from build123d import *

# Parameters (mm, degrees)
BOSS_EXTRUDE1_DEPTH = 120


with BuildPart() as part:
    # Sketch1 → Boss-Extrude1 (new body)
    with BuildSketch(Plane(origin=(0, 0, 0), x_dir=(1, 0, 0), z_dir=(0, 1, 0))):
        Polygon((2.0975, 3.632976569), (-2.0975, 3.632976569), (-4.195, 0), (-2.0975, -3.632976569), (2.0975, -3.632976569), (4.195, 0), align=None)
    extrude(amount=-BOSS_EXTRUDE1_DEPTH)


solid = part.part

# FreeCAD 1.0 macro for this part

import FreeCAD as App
import Part
import Sketcher

V = App.Vector
Q = App.Units.Quantity

doc = App.newDocument("Part")
body = doc.addObject("PartDesign::Body", "Body")

sketch1 = body.newObject("Sketcher::SketchObject", "Sketch")
sketch1.AttachmentSupport = (doc.getObject("XZ_Plane"), [""])
sketch1.MapMode = "FlatFace"
sketch1.addGeometry(Part.LineSegment(V(2.1, -3.6, 0), V(-2.1, -3.6, 0)), False)
sketch1.addGeometry(Part.LineSegment(V(-2.1, -3.6, 0), V(-4.2, 0, 0)), False)
sketch1.addGeometry(Part.LineSegment(V(-4.2, 0, 0), V(-2.1, 3.6, 0)), False)
sketch1.addGeometry(Part.LineSegment(V(-2.1, 3.6, 0), V(2.1, 3.6, 0)), False)
sketch1.addGeometry(Part.LineSegment(V(2.1, 3.6, 0), V(4.2, 0, 0)), False)
sketch1.addGeometry(Part.LineSegment(V(4.2, 0, 0), V(2.1, -3.6, 0)), False)
sketch1.addConstraint(Sketcher.Constraint("Coincident", 0, 2, 1, 1))
sketch1.addConstraint(Sketcher.Constraint("Coincident", 1, 2, 2, 1))
sketch1.addConstraint(Sketcher.Constraint("Coincident", 2, 2, 3, 1))
sketch1.addConstraint(Sketcher.Constraint("Coincident", 3, 2, 4, 1))
sketch1.addConstraint(Sketcher.Constraint("Coincident", 4, 2, 5, 1))
sketch1.addConstraint(Sketcher.Constraint("Coincident", 5, 2, 0, 1))
sketch1.addConstraint(Sketcher.Constraint("Horizontal", 0))
sketch1.addConstraint(Sketcher.Constraint("Horizontal", 3))
sketch1.addConstraint(Sketcher.Constraint("Symmetric", 0, 2, 3, 2, -1, 1))
sketch1.addConstraint(Sketcher.Constraint("Symmetric", 1, 2, 4, 2, -1, 1))
sketch1.addConstraint(Sketcher.Constraint("PointOnObject", 1, 2, -1))
sketch1.addConstraint(Sketcher.Constraint("Parallel", 2, 5))
sketch1.addConstraint(Sketcher.Constraint("Vertical", 0, 2, 2, 2))
sketch1.addConstraint(Sketcher.Constraint("Angle", 1, Q("120 deg")))
sketch1.addConstraint(Sketcher.Constraint("DistanceX", 0, 2, 0, 1, 4.195))
sketch1.addConstraint(Sketcher.Constraint("DistanceX", 1, 2, 4, 2, 8.39))
pad1 = body.newObject("PartDesign::Pad", "Pad")
pad1.Profile = sketch1
pad1.Length = 120

doc.recompute()
